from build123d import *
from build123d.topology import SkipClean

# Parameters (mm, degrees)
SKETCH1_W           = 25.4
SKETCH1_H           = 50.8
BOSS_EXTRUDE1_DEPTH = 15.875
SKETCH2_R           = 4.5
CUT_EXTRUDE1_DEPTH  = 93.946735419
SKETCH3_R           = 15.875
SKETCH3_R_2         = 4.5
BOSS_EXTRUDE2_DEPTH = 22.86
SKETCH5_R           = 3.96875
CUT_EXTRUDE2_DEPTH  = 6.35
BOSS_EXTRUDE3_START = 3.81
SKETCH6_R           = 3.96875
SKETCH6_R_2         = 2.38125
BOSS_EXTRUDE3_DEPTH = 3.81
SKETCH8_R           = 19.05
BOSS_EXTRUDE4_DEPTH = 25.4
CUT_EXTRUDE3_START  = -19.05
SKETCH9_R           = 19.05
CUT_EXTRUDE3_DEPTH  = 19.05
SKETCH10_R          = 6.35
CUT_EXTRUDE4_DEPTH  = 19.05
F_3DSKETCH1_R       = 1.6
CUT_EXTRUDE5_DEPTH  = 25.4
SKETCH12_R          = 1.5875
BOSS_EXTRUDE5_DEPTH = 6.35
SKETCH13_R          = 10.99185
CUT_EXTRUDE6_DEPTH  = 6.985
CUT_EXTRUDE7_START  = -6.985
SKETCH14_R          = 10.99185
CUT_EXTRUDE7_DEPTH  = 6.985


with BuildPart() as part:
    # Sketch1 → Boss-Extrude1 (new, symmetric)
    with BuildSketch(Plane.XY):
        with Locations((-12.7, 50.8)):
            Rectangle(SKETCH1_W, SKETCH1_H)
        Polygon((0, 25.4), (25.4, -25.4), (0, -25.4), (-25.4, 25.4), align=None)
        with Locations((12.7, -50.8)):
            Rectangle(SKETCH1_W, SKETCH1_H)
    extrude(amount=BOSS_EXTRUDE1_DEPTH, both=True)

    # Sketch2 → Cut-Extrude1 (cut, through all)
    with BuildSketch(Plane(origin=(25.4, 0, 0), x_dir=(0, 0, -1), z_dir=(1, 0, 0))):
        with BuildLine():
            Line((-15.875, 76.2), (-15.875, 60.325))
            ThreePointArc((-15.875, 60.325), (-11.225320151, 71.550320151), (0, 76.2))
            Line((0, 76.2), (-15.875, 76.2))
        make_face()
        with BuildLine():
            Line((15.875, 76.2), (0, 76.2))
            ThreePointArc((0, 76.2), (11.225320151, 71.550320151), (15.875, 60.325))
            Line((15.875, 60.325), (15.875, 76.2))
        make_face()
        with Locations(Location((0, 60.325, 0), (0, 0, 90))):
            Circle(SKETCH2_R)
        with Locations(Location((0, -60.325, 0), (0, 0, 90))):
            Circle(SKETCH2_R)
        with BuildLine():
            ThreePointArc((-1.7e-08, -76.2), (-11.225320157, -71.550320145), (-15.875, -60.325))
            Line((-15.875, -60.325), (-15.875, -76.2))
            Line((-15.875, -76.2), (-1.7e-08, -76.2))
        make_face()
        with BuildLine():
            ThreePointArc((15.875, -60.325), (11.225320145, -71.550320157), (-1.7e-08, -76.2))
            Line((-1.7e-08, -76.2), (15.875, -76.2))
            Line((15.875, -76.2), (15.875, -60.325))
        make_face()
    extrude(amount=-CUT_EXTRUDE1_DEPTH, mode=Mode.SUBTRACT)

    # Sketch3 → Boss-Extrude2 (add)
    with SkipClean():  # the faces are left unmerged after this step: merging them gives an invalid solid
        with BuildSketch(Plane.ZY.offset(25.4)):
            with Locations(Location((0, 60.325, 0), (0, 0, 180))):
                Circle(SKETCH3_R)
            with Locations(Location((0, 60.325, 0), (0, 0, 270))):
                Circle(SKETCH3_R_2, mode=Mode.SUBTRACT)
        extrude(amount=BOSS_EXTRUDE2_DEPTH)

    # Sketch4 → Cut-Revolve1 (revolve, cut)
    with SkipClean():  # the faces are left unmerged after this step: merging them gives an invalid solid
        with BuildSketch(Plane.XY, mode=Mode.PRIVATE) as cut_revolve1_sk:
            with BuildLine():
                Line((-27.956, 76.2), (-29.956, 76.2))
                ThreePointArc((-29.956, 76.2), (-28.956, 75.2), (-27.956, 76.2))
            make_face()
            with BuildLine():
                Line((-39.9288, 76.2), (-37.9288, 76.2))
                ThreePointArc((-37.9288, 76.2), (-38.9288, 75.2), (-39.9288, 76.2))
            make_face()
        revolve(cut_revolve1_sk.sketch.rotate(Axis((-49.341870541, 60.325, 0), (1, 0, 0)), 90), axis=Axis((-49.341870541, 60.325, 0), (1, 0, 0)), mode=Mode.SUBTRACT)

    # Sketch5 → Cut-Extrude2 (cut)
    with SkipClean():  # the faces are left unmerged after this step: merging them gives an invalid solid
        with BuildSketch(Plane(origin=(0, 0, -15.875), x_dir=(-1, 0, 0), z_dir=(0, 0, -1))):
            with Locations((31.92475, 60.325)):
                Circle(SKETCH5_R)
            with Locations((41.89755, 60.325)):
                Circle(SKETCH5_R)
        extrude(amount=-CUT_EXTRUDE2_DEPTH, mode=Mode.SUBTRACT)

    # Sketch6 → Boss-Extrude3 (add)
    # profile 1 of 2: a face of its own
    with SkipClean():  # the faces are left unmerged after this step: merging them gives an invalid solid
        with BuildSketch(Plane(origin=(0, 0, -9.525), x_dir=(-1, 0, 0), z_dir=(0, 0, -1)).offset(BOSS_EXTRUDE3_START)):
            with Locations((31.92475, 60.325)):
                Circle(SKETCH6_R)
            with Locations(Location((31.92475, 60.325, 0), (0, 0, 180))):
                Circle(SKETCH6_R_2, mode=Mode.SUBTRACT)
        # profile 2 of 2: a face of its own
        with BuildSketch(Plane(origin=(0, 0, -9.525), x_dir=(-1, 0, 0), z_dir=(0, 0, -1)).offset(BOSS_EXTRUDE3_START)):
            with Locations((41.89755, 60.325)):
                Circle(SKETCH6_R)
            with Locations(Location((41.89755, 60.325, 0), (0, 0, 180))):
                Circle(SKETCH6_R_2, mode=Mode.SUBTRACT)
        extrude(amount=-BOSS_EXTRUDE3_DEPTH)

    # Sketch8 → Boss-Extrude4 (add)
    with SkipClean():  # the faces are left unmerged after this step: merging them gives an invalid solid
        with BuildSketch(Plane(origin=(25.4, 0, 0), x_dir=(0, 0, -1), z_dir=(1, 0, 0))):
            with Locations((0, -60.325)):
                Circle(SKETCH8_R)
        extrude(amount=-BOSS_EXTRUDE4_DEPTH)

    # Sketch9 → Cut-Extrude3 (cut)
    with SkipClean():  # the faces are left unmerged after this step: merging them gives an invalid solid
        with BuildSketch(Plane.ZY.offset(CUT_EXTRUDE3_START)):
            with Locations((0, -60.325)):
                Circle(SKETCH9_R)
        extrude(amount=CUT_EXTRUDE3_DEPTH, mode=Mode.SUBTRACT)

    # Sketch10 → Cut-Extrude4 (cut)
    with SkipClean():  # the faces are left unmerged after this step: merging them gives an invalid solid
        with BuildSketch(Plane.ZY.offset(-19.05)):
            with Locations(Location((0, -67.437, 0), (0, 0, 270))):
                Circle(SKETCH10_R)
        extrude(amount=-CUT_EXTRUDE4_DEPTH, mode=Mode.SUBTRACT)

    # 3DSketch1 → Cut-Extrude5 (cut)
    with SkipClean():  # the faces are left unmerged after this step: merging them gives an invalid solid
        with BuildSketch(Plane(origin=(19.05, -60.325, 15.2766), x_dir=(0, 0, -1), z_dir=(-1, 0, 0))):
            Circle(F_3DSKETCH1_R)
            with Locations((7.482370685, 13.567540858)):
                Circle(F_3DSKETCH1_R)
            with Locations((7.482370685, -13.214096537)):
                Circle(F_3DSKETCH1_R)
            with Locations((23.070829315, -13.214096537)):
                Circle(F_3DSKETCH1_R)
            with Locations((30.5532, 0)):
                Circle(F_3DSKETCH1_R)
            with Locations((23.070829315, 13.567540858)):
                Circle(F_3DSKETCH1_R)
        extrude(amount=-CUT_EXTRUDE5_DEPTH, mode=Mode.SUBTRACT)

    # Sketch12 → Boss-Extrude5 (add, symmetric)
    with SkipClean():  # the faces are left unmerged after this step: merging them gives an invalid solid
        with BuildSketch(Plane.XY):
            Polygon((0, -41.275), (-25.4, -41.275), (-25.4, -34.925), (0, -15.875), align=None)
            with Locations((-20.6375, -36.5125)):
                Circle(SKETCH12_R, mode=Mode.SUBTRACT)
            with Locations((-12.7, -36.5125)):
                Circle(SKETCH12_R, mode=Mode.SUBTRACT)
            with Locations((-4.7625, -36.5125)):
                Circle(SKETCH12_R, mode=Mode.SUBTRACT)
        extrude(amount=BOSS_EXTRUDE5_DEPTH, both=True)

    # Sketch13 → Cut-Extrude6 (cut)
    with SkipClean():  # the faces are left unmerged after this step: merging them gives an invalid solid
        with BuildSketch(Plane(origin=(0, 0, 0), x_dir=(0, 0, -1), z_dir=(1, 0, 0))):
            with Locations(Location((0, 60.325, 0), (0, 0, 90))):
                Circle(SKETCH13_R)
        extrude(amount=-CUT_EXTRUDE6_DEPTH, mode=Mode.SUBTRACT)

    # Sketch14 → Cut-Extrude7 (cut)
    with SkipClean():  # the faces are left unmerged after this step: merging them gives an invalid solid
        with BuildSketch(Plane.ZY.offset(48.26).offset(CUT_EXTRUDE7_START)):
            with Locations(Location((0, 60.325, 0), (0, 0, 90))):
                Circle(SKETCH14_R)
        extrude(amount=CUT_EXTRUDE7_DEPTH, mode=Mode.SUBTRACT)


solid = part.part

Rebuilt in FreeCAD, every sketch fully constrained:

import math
import FreeCAD as App
import Part
import Sketcher
from FreeCAD import Vector
Q = App.Units.Quantity


def add_polygon(sketch, points):
    """Adds a closed chain of lines whose ends are joined by coincident constraints."""
    first, n = sketch.GeometryCount, len(points)
    for a, b in zip(points, points[1:] + points[:1]):
        sketch.addGeometry(Part.LineSegment(App.Vector(*a, 0), App.Vector(*b, 0)), False)
    for i in range(n):
        sketch.addConstraint(Sketcher.Constraint("Coincident", first + i, 2, first + (i + 1) % n, 1))

doc = App.newDocument("Part")
body = doc.addObject("PartDesign::Body", "Body")

# Sketch on XY plane
sketch1 = doc.addObject("Sketcher::SketchObject", "Sketch")
body.addObject(sketch1)
sketch1.AttachmentSupport = (doc.XY_Plane, [""])
sketch1.MapMode = "FlatFace"
add_polygon(sketch1, [(-25.4, 76.2), (-25.4, 25.4), (0, -25.4), (0, -76.2), (25.4, -76.2), (25.4, -25.4), (0, 25.4), (0, 76.2)])  # lines 0-7
sketch1.addConstraint(Sketcher.Constraint("Vertical", 0))
sketch1.addConstraint(Sketcher.Constraint("Vertical", 2))
sketch1.addConstraint(Sketcher.Constraint("Horizontal", 3))
sketch1.addConstraint(Sketcher.Constraint("Vertical", 4))
sketch1.addConstraint(Sketcher.Constraint("Vertical", 6))
sketch1.addConstraint(Sketcher.Constraint("Horizontal", 7))
sketch1.addConstraint(Sketcher.Constraint("Symmetric", 0, 2, 4, 2, -1, 1))
sketch1.addConstraint(Sketcher.Constraint("Symmetric", 1, 2, 5, 2, -1, 1))
sketch1.addConstraint(Sketcher.Constraint("Symmetric", 2, 2, 6, 2, -1))
sketch1.addConstraint(Sketcher.Constraint("Horizontal", 1, 2, 4, 2))
sketch1.addConstraint(Sketcher.Constraint("DistanceX", 3, 1, 3, 2, Q("1 in")))
sketch1.addConstraint(Sketcher.Constraint("DistanceY", 0, 2, 0, 1, Q("2 in")))
sketch1.addConstraint(Sketcher.Constraint("DistanceY", -1, 1, 0, 2, Q("1 in")))
pad1 = doc.addObject("PartDesign::Pad", "Pad")
body.addObject(pad1)
pad1.Profile = sketch1
pad1.Length = Q("1.25 in")
pad1.Midplane = True

# Sketch on YZ plane
sketch2 = doc.addObject("Sketcher::SketchObject", "Sketch001")
body.addObject(sketch2)
sketch2.AttachmentSupport = (doc.YZ_Plane, [""])
sketch2.MapMode = "FlatFace"
sketch2.AttachmentOffset = App.Placement(Vector(0, 0, 1 * 25.4), App.Rotation())
sketch2.addGeometry(Part.LineSegment(Vector(76.2, 15.875, 0), Vector(60.325, 15.875, 0)), False)
sketch2.addGeometry(Part.ArcOfCircle(Part.Circle(Vector(60.325, 0, 0), Vector(0, 0, 1), 15.875), math.radians(0), math.radians(90)), False)
sketch2.addGeometry(Part.LineSegment(Vector(76.2, 0, 0), Vector(76.2, 15.875, 0)), False)
sketch2.addGeometry(Part.LineSegment(Vector(76.2, -15.875, 0), Vector(76.2, 0, 0)), False)
sketch2.addGeometry(Part.ArcOfCircle(Part.Circle(Vector(60.325, 0, 0), Vector(0, 0, 1), 15.875), math.radians(-90), math.radians(0)), False)
sketch2.addGeometry(Part.LineSegment(Vector(60.325, -15.875, 0), Vector(76.2, -15.875, 0)), False)
sketch2.addGeometry(Part.Circle(Vector(60.325, 0, 0), Vector(0, 0, 1), 4.5), False)
sketch2.addGeometry(Part.Circle(Vector(-60.325, 0, 0), Vector(0, 0, 1), 4.5), False)
sketch2.addGeometry(Part.ArcOfCircle(Part.Circle(Vector(-60.325, 0, 0), Vector(0, 0, 1), 15.875), math.radians(90), math.radians(180)), False)
sketch2.addGeometry(Part.LineSegment(Vector(-60.325, 15.875, 0), Vector(-76.2, 15.875, 0)), False)
sketch2.addGeometry(Part.LineSegment(Vector(-76.2, 15.875, 0), Vector(-76.2, 0, 0)), False)
sketch2.addGeometry(Part.ArcOfCircle(Part.Circle(Vector(-60.325, 0, 0), Vector(0, 0, 1), 15.875), math.radians(180), math.radians(270)), False)
sketch2.addGeometry(Part.LineSegment(Vector(-76.2, 0, 0), Vector(-76.2, -15.875, 0)), False)
sketch2.addGeometry(Part.LineSegment(Vector(-76.2, -15.875, 0), Vector(-60.325, -15.875, 0)), False)
sketch2.addConstraint(Sketcher.Constraint("Tangent", 0, 2, 1, 2))
sketch2.addConstraint(Sketcher.Constraint("Tangent", 1, 1, 2, 1))
sketch2.addConstraint(Sketcher.Constraint("Coincident", 2, 2, 0, 1))
sketch2.addConstraint(Sketcher.Constraint("Tangent", 3, 2, 4, 2))
sketch2.addConstraint(Sketcher.Constraint("Tangent", 4, 1, 5, 1))
sketch2.addConstraint(Sketcher.Constraint("Coincident", 5, 2, 3, 1))
sketch2.addConstraint(Sketcher.Constraint("Tangent", 8, 1, 9, 1))
sketch2.addConstraint(Sketcher.Constraint("Coincident", 9, 2, 10, 1))
sketch2.addConstraint(Sketcher.Constraint("Tangent", 10, 2, 8, 2))
sketch2.addConstraint(Sketcher.Constraint("Tangent", 11, 1, 12, 1))
sketch2.addConstraint(Sketcher.Constraint("Coincident", 12, 2, 13, 1))
sketch2.addConstraint(Sketcher.Constraint("Tangent", 13, 2, 11, 2))
sketch2.addConstraint(Sketcher.Constraint("Horizontal", 0))
sketch2.addConstraint(Sketcher.Constraint("Vertical", 2))
sketch2.addConstraint(Sketcher.Constraint("Vertical", 3))
sketch2.addConstraint(Sketcher.Constraint("Horizontal", 5))
sketch2.addConstraint(Sketcher.Constraint("Horizontal", 9))
sketch2.addConstraint(Sketcher.Constraint("Vertical", 10))
sketch2.addConstraint(Sketcher.Constraint("Vertical", 12))
sketch2.addConstraint(Sketcher.Constraint("Horizontal", 13))
sketch2.addConstraint(Sketcher.Constraint("Coincident", 4, 3, 1, 3))
sketch2.addConstraint(Sketcher.Constraint("Coincident", 6, 3, 1, 3))
sketch2.addConstraint(Sketcher.Constraint("Coincident", 8, 3, 7, 3))
sketch2.addConstraint(Sketcher.Constraint("Coincident", 11, 3, 7, 3))
sketch2.addConstraint(Sketcher.Constraint("Equal", 1, 4))
sketch2.addConstraint(Sketcher.Constraint("Equal", 6, 7))
sketch2.addConstraint(Sketcher.Constraint("Equal", 4, 8))
sketch2.addConstraint(Sketcher.Constraint("Equal", 8, 11))
sketch2.addConstraint(Sketcher.Constraint("Symmetric", 1, 3, 7, 3, -1, 1))
sketch2.addConstraint(Sketcher.Constraint("PointOnObject", 1, 3, -1))
sketch2.addConstraint(Sketcher.Constraint("DistanceX", -1, 1, 1, 1, Q("3 in")))
sketch2.addConstraint(Sketcher.Constraint("Radius", 1, Q("0.625 in")))
sketch2.addConstraint(Sketcher.Constraint("Diameter", 6, 9.0))
pocket1 = doc.addObject("PartDesign::Pocket", "Pocket")
body.addObject(pocket1)
pocket1.Profile = sketch2
pocket1.Type = "ThroughAll"

# Sketch on YZ plane
sketch3 = doc.addObject("Sketcher::SketchObject", "Sketch002")
body.addObject(sketch3)
sketch3.AttachmentSupport = (doc.YZ_Plane, [""])
sketch3.MapMode = "FlatFace"
sketch3.AttachmentOffset = App.Placement(Vector(0, 0, -1 * 25.4), App.Rotation())
sketch3.addGeometry(Part.Circle(Vector(60.325, 0, 0), Vector(0, 0, 1), 15.875), False)
sketch3.addGeometry(Part.Circle(Vector(60.325, 0, 0), Vector(0, 0, 1), 4.5), False)
sketch3.addConstraint(Sketcher.Constraint("Coincident", 1, 3, 0, 3))
sketch3.addConstraint(Sketcher.Constraint("PointOnObject", 0, 3, -1))
sketch3.addConstraint(Sketcher.Constraint("Diameter", 0, Q("1.25 in")))
sketch3.addConstraint(Sketcher.Constraint("Diameter", 1, 9.0))
sketch3.addConstraint(Sketcher.Constraint("DistanceX", -1, 1, 0, 3, Q("2.375 in")))
pad2 = doc.addObject("PartDesign::Pad", "Pad001")
body.addObject(pad2)
pad2.Profile = sketch3
pad2.Length = Q("0.9 in")
pad2.Reversed = True

# Sketch on XY plane
sketch4 = doc.addObject("Sketcher::SketchObject", "Sketch003")
body.addObject(sketch4)
sketch4.AttachmentSupport = (doc.XY_Plane, [""])
sketch4.MapMode = "FlatFace"
sketch4.addGeometry(Part.LineSegment(Vector(-27.956, 76.2, 0), Vector(-29.956, 76.2, 0)), False)
sketch4.addGeometry(Part.ArcOfCircle(Part.Circle(Vector(-28.956, 76.2, 0), Vector(0, 0, 1), 1), math.radians(180), math.radians(360)), False)
sketch4.addGeometry(Part.LineSegment(Vector(-37.9288, 76.2, 0), Vector(-39.9288, 76.2, 0)), False)
sketch4.addGeometry(Part.ArcOfCircle(Part.Circle(Vector(-38.9288, 76.2, 0), Vector(0, 0, 1), 1), math.radians(180), math.radians(360)), False)
sketch4.addGeometry(Part.LineSegment(Vector(-39.9288, 60.325, 0), Vector(-27.956, 60.325, 0)), True)  # axis
sketch4.addConstraint(Sketcher.Constraint("Coincident", 0, 1, 1, 2))
sketch4.addConstraint(Sketcher.Constraint("Coincident", 1, 1, 0, 2))
sketch4.addConstraint(Sketcher.Constraint("Coincident", 2, 1, 3, 2))
sketch4.addConstraint(Sketcher.Constraint("Coincident", 3, 1, 2, 2))
sketch4.addConstraint(Sketcher.Constraint("Horizontal", 0))
sketch4.addConstraint(Sketcher.Constraint("Horizontal", 2))
sketch4.addConstraint(Sketcher.Constraint("Horizontal", 4))
sketch4.addConstraint(Sketcher.Constraint("Equal", 1, 3))
sketch4.addConstraint(Sketcher.Constraint("Horizontal", 1, 3, 3, 3))
sketch4.addConstraint(Sketcher.Constraint("Horizontal", 3, 3, 0, 1))
sketch4.addConstraint(Sketcher.Constraint("Horizontal", 1, 1, 2, 1))
sketch4.addConstraint(Sketcher.Constraint("Vertical", 3, 1, 4, 1))
sketch4.addConstraint(Sketcher.Constraint("Vertical", 0, 1, 4, 2))
sketch4.addConstraint(Sketcher.Constraint("DistanceY", -1, 1, 1, 3, Q("3 in")))
sketch4.addConstraint(Sketcher.Constraint("DistanceX", 1, 3, -1, 1, Q("1.14 in")))
sketch4.addConstraint(Sketcher.Constraint("Radius", 1, 1.0))
sketch4.addConstraint(Sketcher.Constraint("DistanceX", 3, 1, -1, 1, Q("1.572 in")))
sketch4.addConstraint(Sketcher.Constraint("DistanceY", -1, 1, 4, 1, Q("2.375 in")))
groove = doc.addObject("PartDesign::Groove", "Groove")
body.addObject(groove)
groove.Profile = sketch4
groove.ReferenceAxis = (sketch4, ["Axis0"])
groove.Angle = 360

# Sketch on XY plane
sketch5 = doc.addObject("Sketcher::SketchObject", "Sketch004")
body.addObject(sketch5)
sketch5.AttachmentSupport = (doc.XY_Plane, [""])
sketch5.MapMode = "FlatFace"
sketch5.AttachmentOffset = App.Placement(Vector(0, 0, -0.625 * 25.4), App.Rotation())
sketch5.addGeometry(Part.Circle(Vector(-31.92475, 60.325, 0), Vector(0, 0, 1), 3.96875), False)
sketch5.addGeometry(Part.Circle(Vector(-41.89755, 60.325, 0), Vector(0, 0, 1), 3.96875), False)
sketch5.addConstraint(Sketcher.Constraint("Equal", 0, 1))
sketch5.addConstraint(Sketcher.Constraint("Horizontal", 0, 3, 1, 3))
sketch5.addConstraint(Sketcher.Constraint("Diameter", 0, Q("0.3125 in")))
sketch5.addConstraint(Sketcher.Constraint("DistanceY", -1, 1, 0, 3, Q("2.375 in")))
sketch5.addConstraint(Sketcher.Constraint("DistanceX", 1, 3, 0, 3, 9.9728))
sketch5.addConstraint(Sketcher.Constraint("DistanceX", 0, 3, -1, 1, 31.92475))
pocket2 = doc.addObject("PartDesign::Pocket", "Pocket001")
body.addObject(pocket2)
pocket2.Profile = sketch5
pocket2.Length = Q("0.25 in")
pocket2.Reversed = True

# Sketch on XY plane
sketch6 = doc.addObject("Sketcher::SketchObject", "Sketch005")
body.addObject(sketch6)
sketch6.AttachmentSupport = (doc.XY_Plane, [""])
sketch6.MapMode = "FlatFace"
sketch6.AttachmentOffset = App.Placement(Vector(0, 0, -0.525 * 25.4), App.Rotation())
sketch6.addGeometry(Part.Circle(Vector(-31.92475, 60.325, 0), Vector(0, 0, 1), 3.96875), False)
sketch6.addGeometry(Part.Circle(Vector(-31.92475, 60.325, 0), Vector(0, 0, 1), 2.38125), False)
sketch6.addGeometry(Part.Circle(Vector(-41.89755, 60.325, 0), Vector(0, 0, 1), 3.96875), False)
sketch6.addGeometry(Part.Circle(Vector(-41.89755, 60.325, 0), Vector(0, 0, 1), 2.38125), False)
sketch6.addConstraint(Sketcher.Constraint("Coincident", 1, 3, 0, 3))
sketch6.addConstraint(Sketcher.Constraint("Coincident", 3, 3, 2, 3))
sketch6.addConstraint(Sketcher.Constraint("Equal", 0, 2))
sketch6.addConstraint(Sketcher.Constraint("Equal", 1, 3))
sketch6.addConstraint(Sketcher.Constraint("Horizontal", 1, 3, 2, 3))
sketch6.addConstraint(Sketcher.Constraint("Diameter", 0, Q("0.3125 in")))
sketch6.addConstraint(Sketcher.Constraint("Diameter", 1, Q("0.1875 in")))
sketch6.addConstraint(Sketcher.Constraint("DistanceY", -1, 1, 0, 3, Q("2.375 in")))
sketch6.addConstraint(Sketcher.Constraint("DistanceX", 2, 3, 0, 3, 9.9728))
sketch6.addConstraint(Sketcher.Constraint("DistanceX", 0, 3, -1, 1, 31.92475))
pad3 = doc.addObject("PartDesign::Pad", "Pad002")
body.addObject(pad3)
pad3.Profile = sketch6
pad3.Length = Q("0.15 in")

# Sketch on YZ plane
sketch7 = doc.addObject("Sketcher::SketchObject", "Sketch006")
body.addObject(sketch7)
sketch7.AttachmentSupport = (doc.YZ_Plane, [""])
sketch7.MapMode = "FlatFace"
sketch7.AttachmentOffset = App.Placement(Vector(0, 0, 1 * 25.4), App.Rotation())
sketch7.addGeometry(Part.Circle(Vector(-60.325, 0, 0), Vector(0, 0, 1), 19.05), False)
sketch7.addConstraint(Sketcher.Constraint("PointOnObject", 0, 3, -1))
sketch7.addConstraint(Sketcher.Constraint("Diameter", 0, Q("1.5 in")))
sketch7.addConstraint(Sketcher.Constraint("DistanceX", 0, 3, -1, 1, Q("2.375 in")))
pad4 = doc.addObject("PartDesign::Pad", "Pad003")
body.addObject(pad4)
pad4.Profile = sketch7
pad4.Length = Q("1 in")
pad4.Reversed = True

# Sketch on YZ plane
sketch8 = doc.addObject("Sketcher::SketchObject", "Sketch007")
body.addObject(sketch8)
sketch8.AttachmentSupport = (doc.YZ_Plane, [""])
sketch8.MapMode = "FlatFace"
sketch8.AttachmentOffset = App.Placement(Vector(0, 0, 0.75 * 25.4), App.Rotation())
sketch8.addGeometry(Part.Circle(Vector(-60.325, 0, 0), Vector(0, 0, 1), 19.05), False)
sketch8.addConstraint(Sketcher.Constraint("PointOnObject", 0, 3, -1))
sketch8.addConstraint(Sketcher.Constraint("Diameter", 0, Q("1.5 in")))
sketch8.addConstraint(Sketcher.Constraint("DistanceX", 0, 3, -1, 1, Q("2.375 in")))
pocket3 = doc.addObject("PartDesign::Pocket", "Pocket002")
body.addObject(pocket3)
pocket3.Profile = sketch8
pocket3.Length = Q("0.75 in")

# Sketch on YZ plane
sketch9 = doc.addObject("Sketcher::SketchObject", "Sketch008")
body.addObject(sketch9)
sketch9.AttachmentSupport = (doc.YZ_Plane, [""])
sketch9.MapMode = "FlatFace"
sketch9.AttachmentOffset = App.Placement(Vector(0, 0, 0.75 * 25.4), App.Rotation())
sketch9.addGeometry(Part.Circle(Vector(-67.437, 0, 0), Vector(0, 0, 1), 6.35), False)
sketch9.addConstraint(Sketcher.Constraint("PointOnObject", 0, 3, -1))
sketch9.addConstraint(Sketcher.Constraint("Diameter", 0, Q("0.5 in")))
sketch9.addConstraint(Sketcher.Constraint("DistanceX", 0, 3, -1, 1, Q("2.655 in")))
pocket4 = doc.addObject("PartDesign::Pocket", "Pocket003")
body.addObject(pocket4)
pocket4.Profile = sketch9
pocket4.Length = Q("0.75 in")
pocket4.Reversed = True

# Sketch on YZ plane
sketch10 = doc.addObject("Sketcher::SketchObject", "Sketch009")
body.addObject(sketch10)
sketch10.AttachmentSupport = (doc.YZ_Plane, [""])
sketch10.MapMode = "FlatFace"
sketch10.AttachmentOffset = App.Placement(Vector(0, 0, 0.75 * 25.4), App.Rotation())
sketch10.addGeometry(Part.Circle(Vector(-60.325, 15.2766, 0), Vector(0, 0, 1), 1.6), False)
sketch10.addGeometry(Part.Circle(Vector(-73.892541, 7.794229, 0), Vector(0, 0, 1), 1.6), False)
sketch10.addGeometry(Part.Circle(Vector(-47.110903, 7.794229, 0), Vector(0, 0, 1), 1.6), False)
sketch10.addGeometry(Part.Circle(Vector(-47.110903, -7.794229, 0), Vector(0, 0, 1), 1.6), False)
sketch10.addGeometry(Part.Circle(Vector(-60.325, -15.2766, 0), Vector(0, 0, 1), 1.6), False)
sketch10.addGeometry(Part.Circle(Vector(-73.892541, -7.794229, 0), Vector(0, 0, 1), 1.6), False)
sketch10.addConstraint(Sketcher.Constraint("Equal", 0, 1))
sketch10.addConstraint(Sketcher.Constraint("Equal", 1, 2))
sketch10.addConstraint(Sketcher.Constraint("Equal", 2, 3))
sketch10.addConstraint(Sketcher.Constraint("Equal", 3, 4))
sketch10.addConstraint(Sketcher.Constraint("Equal", 4, 5))
sketch10.addConstraint(Sketcher.Constraint("Symmetric", 2, 3, 3, 3, -1))
sketch10.addConstraint(Sketcher.Constraint("Symmetric", 0, 3, 4, 3, -1))
sketch10.addConstraint(Sketcher.Constraint("Symmetric", 1, 3, 5, 3, -1))
sketch10.addConstraint(Sketcher.Constraint("Horizontal", 1, 3, 2, 3))
sketch10.addConstraint(Sketcher.Constraint("Diameter", 0, 3.2))
sketch10.addConstraint(Sketcher.Constraint("DistanceX", 0, 3, -1, 1, Q("2.375 in")))
sketch10.addConstraint(Sketcher.Constraint("DistanceY", -1, 1, 0, 3, 15.2766))
sketch10.addConstraint(Sketcher.Constraint("DistanceX", 1, 3, -1, 1, 73.892541))
sketch10.addConstraint(Sketcher.Constraint("DistanceY", -1, 1, 1, 3, 7.794229))
sketch10.addConstraint(Sketcher.Constraint("DistanceX", 2, 3, -1, 1, 47.110903))
pocket5 = doc.addObject("PartDesign::Pocket", "Pocket004")
body.addObject(pocket5)
pocket5.Profile = sketch10
pocket5.Length = Q("1 in")
pocket5.Reversed = True

# Sketch on XY plane
sketch11 = doc.addObject("Sketcher::SketchObject", "Sketch010")
body.addObject(sketch11)
sketch11.AttachmentSupport = (doc.XY_Plane, [""])
sketch11.MapMode = "FlatFace"
add_polygon(sketch11, [(-25.4, -41.275), (0, -41.275), (0, -15.875), (-25.4, -34.925)])  # lines 0-3
sketch11.addGeometry(Part.Circle(Vector(-4.7625, -36.5125, 0), Vector(0, 0, 1), 1.5875), False)  # 4
sketch11.addGeometry(Part.Circle(Vector(-12.7, -36.5125, 0), Vector(0, 0, 1), 1.5875), False)  # 5
sketch11.addGeometry(Part.Circle(Vector(-20.6375, -36.5125, 0), Vector(0, 0, 1), 1.5875), False)  # 6
sketch11.addConstraint(Sketcher.Constraint("Horizontal", 0))
sketch11.addConstraint(Sketcher.Constraint("Vertical", 1))
sketch11.addConstraint(Sketcher.Constraint("Vertical", 3))
sketch11.addConstraint(Sketcher.Constraint("Equal", 4, 5))
sketch11.addConstraint(Sketcher.Constraint("Equal", 5, 6))
sketch11.addConstraint(Sketcher.Constraint("PointOnObject", 0, 2, -2))
sketch11.addConstraint(Sketcher.Constraint("Horizontal", 4, 3, 5, 3))
sketch11.addConstraint(Sketcher.Constraint("Horizontal", 5, 3, 6, 3))
sketch11.addConstraint(Sketcher.Constraint("Equal", 0, 1))
sketch11.addConstraint(Sketcher.Constraint("DistanceX", 0, 1, 0, 2, Q("1 in")))
sketch11.addConstraint(Sketcher.Constraint("Diameter", 4, Q("0.125 in")))
sketch11.addConstraint(Sketcher.Constraint("DistanceY", 3, 2, 3, 1, Q("0.25 in")))
sketch11.addConstraint(Sketcher.Constraint("DistanceX", 5, 3, -1, 1, Q("0.5 in")))
sketch11.addConstraint(Sketcher.Constraint("DistanceX", 4, 3, -1, 1, Q("0.1875 in")))
sketch11.addConstraint(Sketcher.Constraint("DistanceY", 4, 3, -1, 1, Q("1.4375 in")))
sketch11.addConstraint(Sketcher.Constraint("DistanceX", 6, 3, -1, 1, Q("0.8125 in")))
sketch11.addConstraint(Sketcher.Constraint("DistanceY", 0, 2, -1, 1, Q("1.625 in")))
pad5 = doc.addObject("PartDesign::Pad", "Pad004")
body.addObject(pad5)
pad5.Profile = sketch11
pad5.Length = Q("0.5 in")
pad5.Midplane = True

# Sketch on YZ plane
sketch12 = doc.addObject("Sketcher::SketchObject", "Sketch011")
body.addObject(sketch12)
sketch12.AttachmentSupport = (doc.YZ_Plane, [""])
sketch12.MapMode = "FlatFace"
sketch12.addGeometry(Part.Circle(Vector(60.325, 0, 0), Vector(0, 0, 1), 10.99185), False)
sketch12.addConstraint(Sketcher.Constraint("PointOnObject", 0, 3, -1))
sketch12.addConstraint(Sketcher.Constraint("Diameter", 0, Q("0.8655 in")))
sketch12.addConstraint(Sketcher.Constraint("DistanceX", -1, 1, 0, 3, Q("2.375 in")))
pocket6 = doc.addObject("PartDesign::Pocket", "Pocket005")
body.addObject(pocket6)
pocket6.Profile = sketch12
pocket6.Length = Q("0.275 in")

# Sketch on YZ plane
sketch13 = doc.addObject("Sketcher::SketchObject", "Sketch012")
body.addObject(sketch13)
sketch13.AttachmentSupport = (doc.YZ_Plane, [""])
sketch13.MapMode = "FlatFace"
sketch13.AttachmentOffset = App.Placement(Vector(0, 0, -1.625 * 25.4), App.Rotation())
sketch13.addGeometry(Part.Circle(Vector(60.325, 0, 0), Vector(0, 0, 1), 10.99185), False)
sketch13.addConstraint(Sketcher.Constraint("PointOnObject", 0, 3, -1))
sketch13.addConstraint(Sketcher.Constraint("Diameter", 0, Q("0.8655 in")))
sketch13.addConstraint(Sketcher.Constraint("DistanceX", -1, 1, 0, 3, Q("2.375 in")))
pocket7 = doc.addObject("PartDesign::Pocket", "Pocket006")
body.addObject(pocket7)
pocket7.Profile = sketch13
pocket7.Length = Q("0.275 in")

doc.recompute()
